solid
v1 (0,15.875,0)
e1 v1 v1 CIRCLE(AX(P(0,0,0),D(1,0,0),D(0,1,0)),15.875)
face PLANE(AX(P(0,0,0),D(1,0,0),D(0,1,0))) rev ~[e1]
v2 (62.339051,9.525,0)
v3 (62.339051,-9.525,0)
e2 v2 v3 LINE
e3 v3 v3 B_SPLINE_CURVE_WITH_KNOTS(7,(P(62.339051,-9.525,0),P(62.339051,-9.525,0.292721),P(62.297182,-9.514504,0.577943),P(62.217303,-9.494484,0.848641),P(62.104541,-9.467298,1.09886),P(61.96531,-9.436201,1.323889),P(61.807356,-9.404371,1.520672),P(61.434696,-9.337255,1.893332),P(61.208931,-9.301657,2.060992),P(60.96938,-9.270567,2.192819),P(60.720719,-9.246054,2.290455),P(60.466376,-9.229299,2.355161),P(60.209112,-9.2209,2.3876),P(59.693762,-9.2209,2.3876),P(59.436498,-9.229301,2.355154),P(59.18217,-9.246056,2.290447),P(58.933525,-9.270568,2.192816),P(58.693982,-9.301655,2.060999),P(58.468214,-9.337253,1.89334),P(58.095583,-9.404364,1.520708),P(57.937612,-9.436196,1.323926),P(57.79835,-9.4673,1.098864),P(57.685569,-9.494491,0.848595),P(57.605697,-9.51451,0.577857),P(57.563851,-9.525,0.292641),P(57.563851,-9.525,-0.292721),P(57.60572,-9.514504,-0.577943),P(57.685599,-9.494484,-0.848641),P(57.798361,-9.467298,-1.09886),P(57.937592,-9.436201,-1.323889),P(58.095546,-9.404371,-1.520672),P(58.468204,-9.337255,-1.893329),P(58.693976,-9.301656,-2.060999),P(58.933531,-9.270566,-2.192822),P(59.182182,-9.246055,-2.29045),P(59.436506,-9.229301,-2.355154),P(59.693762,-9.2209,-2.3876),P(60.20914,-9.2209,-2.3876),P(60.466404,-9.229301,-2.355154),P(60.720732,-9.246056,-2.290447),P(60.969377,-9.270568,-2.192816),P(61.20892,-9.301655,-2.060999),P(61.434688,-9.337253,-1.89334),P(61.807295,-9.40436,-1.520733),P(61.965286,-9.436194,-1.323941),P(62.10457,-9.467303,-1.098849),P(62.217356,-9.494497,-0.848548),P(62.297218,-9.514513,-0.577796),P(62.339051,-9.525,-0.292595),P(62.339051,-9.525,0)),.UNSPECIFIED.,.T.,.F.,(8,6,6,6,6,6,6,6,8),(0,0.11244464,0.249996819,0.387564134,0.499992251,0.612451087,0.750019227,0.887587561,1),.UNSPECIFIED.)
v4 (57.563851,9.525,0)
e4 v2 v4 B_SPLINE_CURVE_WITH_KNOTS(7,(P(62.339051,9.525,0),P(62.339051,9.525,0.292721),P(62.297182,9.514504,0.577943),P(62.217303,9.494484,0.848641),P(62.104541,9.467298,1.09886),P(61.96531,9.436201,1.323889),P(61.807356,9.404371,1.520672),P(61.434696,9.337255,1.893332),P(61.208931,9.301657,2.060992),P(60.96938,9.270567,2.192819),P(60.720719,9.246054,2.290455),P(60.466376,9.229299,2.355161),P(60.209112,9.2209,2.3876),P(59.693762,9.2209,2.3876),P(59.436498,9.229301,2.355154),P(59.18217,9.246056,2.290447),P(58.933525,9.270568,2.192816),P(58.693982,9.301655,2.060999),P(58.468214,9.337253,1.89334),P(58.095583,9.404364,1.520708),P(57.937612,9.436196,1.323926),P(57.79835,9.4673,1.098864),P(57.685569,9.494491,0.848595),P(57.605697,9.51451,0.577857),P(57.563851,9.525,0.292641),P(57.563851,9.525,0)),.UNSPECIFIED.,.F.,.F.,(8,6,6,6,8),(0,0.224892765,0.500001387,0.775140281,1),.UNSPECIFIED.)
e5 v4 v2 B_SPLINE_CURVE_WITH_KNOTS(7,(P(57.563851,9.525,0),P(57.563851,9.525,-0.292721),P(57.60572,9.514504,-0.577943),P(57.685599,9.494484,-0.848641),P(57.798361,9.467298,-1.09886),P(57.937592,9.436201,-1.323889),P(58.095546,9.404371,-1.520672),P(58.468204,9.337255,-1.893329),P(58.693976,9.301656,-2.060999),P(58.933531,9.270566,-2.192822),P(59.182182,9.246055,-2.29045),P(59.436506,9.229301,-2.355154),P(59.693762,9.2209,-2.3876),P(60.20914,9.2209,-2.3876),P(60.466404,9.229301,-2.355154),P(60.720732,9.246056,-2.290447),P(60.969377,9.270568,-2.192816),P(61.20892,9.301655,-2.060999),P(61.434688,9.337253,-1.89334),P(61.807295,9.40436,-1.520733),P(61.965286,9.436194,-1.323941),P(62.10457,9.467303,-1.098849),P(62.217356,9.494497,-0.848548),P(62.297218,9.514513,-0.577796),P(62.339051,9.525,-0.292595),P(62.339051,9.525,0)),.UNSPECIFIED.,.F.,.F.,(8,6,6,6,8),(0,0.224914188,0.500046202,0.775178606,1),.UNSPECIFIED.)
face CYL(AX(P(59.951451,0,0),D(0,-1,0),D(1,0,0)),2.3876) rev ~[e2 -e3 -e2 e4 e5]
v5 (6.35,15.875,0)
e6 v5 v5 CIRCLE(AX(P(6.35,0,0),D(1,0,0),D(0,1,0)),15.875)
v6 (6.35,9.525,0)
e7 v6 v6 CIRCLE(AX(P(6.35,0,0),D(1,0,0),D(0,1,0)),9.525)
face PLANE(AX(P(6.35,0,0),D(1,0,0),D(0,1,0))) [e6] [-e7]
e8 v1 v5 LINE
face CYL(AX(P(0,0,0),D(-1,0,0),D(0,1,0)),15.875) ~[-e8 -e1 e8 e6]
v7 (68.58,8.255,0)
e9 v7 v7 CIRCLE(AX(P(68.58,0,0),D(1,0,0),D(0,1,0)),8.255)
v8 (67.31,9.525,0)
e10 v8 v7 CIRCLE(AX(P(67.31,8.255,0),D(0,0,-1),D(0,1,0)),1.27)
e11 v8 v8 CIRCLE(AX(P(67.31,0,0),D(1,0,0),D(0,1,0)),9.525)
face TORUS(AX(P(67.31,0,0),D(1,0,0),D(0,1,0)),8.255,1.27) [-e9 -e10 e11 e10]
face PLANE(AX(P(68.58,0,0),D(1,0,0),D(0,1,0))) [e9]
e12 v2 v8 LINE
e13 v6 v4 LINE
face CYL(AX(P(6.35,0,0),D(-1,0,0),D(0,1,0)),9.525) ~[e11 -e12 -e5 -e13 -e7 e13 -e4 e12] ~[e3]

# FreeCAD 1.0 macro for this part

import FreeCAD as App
import Part
import Sketcher

V = App.Vector
Q = App.Units.Quantity


def edges_at(feature, points):
    """Names of the edges that pass closest to the given points."""
    edges = feature.Shape.Edges
    near = lambda p: min(range(len(edges)), key=lambda i: edges[i].distToShape(Part.Vertex(*p))[0])
    return sorted({f"Edge{near(p) + 1}" for p in points})

doc = App.newDocument("Part")
body = doc.addObject("PartDesign::Body", "Body")

# Sketch on YZ plane
sketch1 = body.newObject("Sketcher::SketchObject", "Sketch")
sketch1.AttachmentSupport = (doc.getObject("YZ_Plane"), [""])
sketch1.MapMode = "FlatFace"
sketch1.addGeometry(Part.Circle(V(0, 0, 0), V(0, 0, 1), 16), False)
sketch1.addConstraint([
    Sketcher.Constraint("Coincident", 0, 3, -1, 1),
    Sketcher.Constraint("Diameter", 0, Q("1.25 in")),
])
pad1 = body.newObject("PartDesign::Pad", "Pad")
pad1.Profile = sketch1
pad1.Length = Q("0.25 in")

# Sketch on YZ plane
sketch2 = body.newObject("Sketcher::SketchObject", "Sketch001")
sketch2.AttachmentSupport = (doc.getObject("YZ_Plane"), [""])
sketch2.MapMode = "FlatFace"
sketch2.AttachmentOffset = App.Placement(V(0, 0, 0.25 * 25.4), App.Rotation())
sketch2.addGeometry(Part.Circle(V(0, 0, 0), V(0, 0, 1), 10), False)
sketch2.addConstraint([
    Sketcher.Constraint("Coincident", 0, 3, -1, 1),
    Sketcher.Constraint("Diameter", 0, Q("0.75 in")),
])
pad2 = body.newObject("PartDesign::Pad", "Pad001")
pad2.Profile = sketch2
pad2.Length = Q("2.45 in")
doc.recompute()

fillet = body.newObject("PartDesign::Fillet", "Fillet")
fillet.Base = (pad2, edges_at(pad2, [(68.58, -9.525, 0)]))
fillet.Radius = Q("0.05 in")

# Sketch on XZ plane
sketch3 = body.newObject("Sketcher::SketchObject", "Sketch002")
sketch3.AttachmentSupport = (doc.getObject("XZ_Plane"), [""])
sketch3.MapMode = "FlatFace"
sketch3.addGeometry(Part.Circle(V(60, 0, 0), V(0, 0, 1), 2.4), False)
sketch3.addConstraint([
    Sketcher.Constraint("PointOnObject", 0, 3, -1),
    Sketcher.Constraint("Diameter", 0, Q("0.188 in")),
    Sketcher.Constraint("DistanceX", -1, 1, 0, 3, 59.951451),
])
pocket1 = body.newObject("PartDesign::Pocket", "Pocket")
pocket1.Profile = sketch3
pocket1.Length = Q("1 in")
pocket1.Midplane = True

doc.recompute()
